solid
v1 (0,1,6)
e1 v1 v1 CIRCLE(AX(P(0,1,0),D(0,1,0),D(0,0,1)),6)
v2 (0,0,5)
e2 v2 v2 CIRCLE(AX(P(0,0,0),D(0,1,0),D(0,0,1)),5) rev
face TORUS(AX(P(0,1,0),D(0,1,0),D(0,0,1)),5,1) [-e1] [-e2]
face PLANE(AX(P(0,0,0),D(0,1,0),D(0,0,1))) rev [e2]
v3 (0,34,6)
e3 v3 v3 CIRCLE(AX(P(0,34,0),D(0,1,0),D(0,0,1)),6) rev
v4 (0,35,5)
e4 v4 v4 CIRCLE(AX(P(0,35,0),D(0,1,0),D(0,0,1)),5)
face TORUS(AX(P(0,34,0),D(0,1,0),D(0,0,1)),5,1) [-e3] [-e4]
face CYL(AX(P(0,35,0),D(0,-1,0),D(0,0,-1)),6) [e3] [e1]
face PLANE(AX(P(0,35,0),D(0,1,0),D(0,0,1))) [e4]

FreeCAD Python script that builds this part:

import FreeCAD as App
import Part
import Sketcher
from FreeCAD import Vector
Q = App.Units.Quantity


def edges_at(feature, points):
    """Names of the edges that pass closest to the given points."""
    edges = feature.Shape.Edges
    near = lambda p: min(range(len(edges)), key=lambda i: edges[i].distToShape(Part.Vertex(*p))[0])
    return sorted({f"Edge{near(p) + 1}" for p in points})

doc = App.newDocument("Part")
body = doc.addObject("PartDesign::Body", "Body")

# Sketch on XZ plane
sketch1 = doc.addObject("Sketcher::SketchObject", "Sketch")
body.addObject(sketch1)
sketch1.AttachmentSupport = (doc.XZ_Plane, [""])
sketch1.MapMode = "FlatFace"
sketch1.addGeometry(Part.Circle(Vector(0, 0, 0), Vector(0, 0, 1), 6), False)
sketch1.addConstraint(Sketcher.Constraint("Coincident", 0, 3, -1, 1))
sketch1.addConstraint(Sketcher.Constraint("Diameter", 0, Q("12 mm")))
pad1 = doc.addObject("PartDesign::Pad", "Pad")
body.addObject(pad1)
pad1.Profile = sketch1
pad1.Length = 35
pad1.Reversed = True
doc.recompute()

fillet = doc.addObject("PartDesign::Fillet", "Fillet")
body.addObject(fillet)
fillet.Base = (pad1, edges_at(pad1, [(-6, 0, 0), (-6, 35, 0)]))
fillet.Radius = 1

doc.recompute()
